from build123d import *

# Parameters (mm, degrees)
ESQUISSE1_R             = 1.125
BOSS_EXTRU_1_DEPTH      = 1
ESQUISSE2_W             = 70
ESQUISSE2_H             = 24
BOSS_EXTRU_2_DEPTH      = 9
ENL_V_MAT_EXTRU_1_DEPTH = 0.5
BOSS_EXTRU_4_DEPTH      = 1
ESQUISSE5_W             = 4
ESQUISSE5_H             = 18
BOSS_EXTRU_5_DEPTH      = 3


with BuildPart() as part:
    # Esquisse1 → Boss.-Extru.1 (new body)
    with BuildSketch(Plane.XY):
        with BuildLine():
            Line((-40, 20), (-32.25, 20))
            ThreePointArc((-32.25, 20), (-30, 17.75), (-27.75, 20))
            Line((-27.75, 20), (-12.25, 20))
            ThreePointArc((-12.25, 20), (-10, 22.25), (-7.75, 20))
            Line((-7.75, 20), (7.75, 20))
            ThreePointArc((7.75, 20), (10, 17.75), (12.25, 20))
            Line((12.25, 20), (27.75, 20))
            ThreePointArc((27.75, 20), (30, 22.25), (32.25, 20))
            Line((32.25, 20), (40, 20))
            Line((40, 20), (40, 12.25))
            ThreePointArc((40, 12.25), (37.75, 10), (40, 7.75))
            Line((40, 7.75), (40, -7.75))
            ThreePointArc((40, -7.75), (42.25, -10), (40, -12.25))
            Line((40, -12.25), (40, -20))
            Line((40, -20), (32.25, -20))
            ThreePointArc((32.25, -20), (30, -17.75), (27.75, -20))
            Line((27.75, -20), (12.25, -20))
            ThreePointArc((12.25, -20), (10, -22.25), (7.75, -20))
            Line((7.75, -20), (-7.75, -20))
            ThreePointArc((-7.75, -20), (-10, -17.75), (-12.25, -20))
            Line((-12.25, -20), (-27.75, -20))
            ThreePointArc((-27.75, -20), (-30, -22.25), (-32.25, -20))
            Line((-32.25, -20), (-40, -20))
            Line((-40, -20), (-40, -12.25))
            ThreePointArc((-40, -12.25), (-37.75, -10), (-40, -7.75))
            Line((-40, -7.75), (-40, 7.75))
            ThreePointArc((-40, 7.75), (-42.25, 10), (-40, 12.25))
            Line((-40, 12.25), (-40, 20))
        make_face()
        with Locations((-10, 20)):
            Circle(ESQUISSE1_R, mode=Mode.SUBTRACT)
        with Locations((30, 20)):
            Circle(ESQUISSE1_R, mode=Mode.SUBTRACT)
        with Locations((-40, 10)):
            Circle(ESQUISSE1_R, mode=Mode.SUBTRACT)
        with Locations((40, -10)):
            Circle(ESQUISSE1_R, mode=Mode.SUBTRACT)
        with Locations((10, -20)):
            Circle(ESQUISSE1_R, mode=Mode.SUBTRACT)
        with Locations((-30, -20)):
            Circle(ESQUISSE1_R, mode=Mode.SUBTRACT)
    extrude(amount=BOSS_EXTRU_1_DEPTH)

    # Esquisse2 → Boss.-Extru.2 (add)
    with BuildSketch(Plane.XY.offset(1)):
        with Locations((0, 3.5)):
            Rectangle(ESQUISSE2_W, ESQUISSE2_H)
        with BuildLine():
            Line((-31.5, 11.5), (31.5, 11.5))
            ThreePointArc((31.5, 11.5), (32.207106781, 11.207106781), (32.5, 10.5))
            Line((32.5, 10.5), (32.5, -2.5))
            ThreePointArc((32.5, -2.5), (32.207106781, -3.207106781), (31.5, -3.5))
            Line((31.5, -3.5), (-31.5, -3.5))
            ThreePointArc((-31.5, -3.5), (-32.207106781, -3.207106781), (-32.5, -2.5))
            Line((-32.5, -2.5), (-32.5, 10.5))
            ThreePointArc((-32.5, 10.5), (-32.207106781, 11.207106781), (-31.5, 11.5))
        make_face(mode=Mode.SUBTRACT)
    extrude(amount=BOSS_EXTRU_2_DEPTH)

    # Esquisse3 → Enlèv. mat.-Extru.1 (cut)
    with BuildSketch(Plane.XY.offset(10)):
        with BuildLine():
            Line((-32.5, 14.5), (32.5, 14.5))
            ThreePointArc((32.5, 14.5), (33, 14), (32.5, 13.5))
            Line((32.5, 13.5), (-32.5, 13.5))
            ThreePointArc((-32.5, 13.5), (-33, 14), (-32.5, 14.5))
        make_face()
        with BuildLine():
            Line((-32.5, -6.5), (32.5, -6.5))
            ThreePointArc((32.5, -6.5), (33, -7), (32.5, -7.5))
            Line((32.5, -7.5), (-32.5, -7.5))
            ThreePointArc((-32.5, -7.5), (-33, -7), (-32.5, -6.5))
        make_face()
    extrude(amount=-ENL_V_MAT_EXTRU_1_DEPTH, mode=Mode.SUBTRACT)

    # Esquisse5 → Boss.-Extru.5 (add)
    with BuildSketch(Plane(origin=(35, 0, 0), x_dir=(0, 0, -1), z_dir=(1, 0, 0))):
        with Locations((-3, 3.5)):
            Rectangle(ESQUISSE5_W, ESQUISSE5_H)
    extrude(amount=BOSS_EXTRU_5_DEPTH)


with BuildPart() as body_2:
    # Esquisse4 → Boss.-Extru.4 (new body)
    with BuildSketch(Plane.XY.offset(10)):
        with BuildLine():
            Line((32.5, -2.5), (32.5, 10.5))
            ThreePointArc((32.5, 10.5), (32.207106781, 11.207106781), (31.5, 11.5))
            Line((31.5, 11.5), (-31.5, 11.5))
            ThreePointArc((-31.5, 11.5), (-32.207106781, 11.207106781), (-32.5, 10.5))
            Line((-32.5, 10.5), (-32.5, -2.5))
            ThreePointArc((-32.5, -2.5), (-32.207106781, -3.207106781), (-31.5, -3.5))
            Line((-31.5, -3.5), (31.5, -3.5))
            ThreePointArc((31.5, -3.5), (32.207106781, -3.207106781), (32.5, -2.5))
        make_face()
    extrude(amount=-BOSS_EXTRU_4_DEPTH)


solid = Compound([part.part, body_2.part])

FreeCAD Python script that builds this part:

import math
import FreeCAD as App
import Part
import Sketcher

doc = App.newDocument("Part")
body = doc.addObject("PartDesign::Body", "Body")

# Sketch on XY plane
sketch1 = body.newObject("Sketcher::SketchObject", "Sketch")
sketch1.AttachmentSupport = (doc.getObject("XY_Plane"), [""])
sketch1.MapMode = "FlatFace"
sketch1.addGeometry(Part.LineSegment(App.Vector(-32.2, 20, 0), App.Vector(-40, 20, 0)), False)
sketch1.addGeometry(Part.LineSegment(App.Vector(-40, 20, 0), App.Vector(-40, 12.2, 0)), False)
sketch1.addGeometry(Part.ArcOfCircle(Part.Circle(App.Vector(-40, 10, 0), App.Vector(0, 0, 1), 2.2), math.radians(90), math.radians(270)), False)
sketch1.addGeometry(Part.LineSegment(App.Vector(-40, 7.8, 0), App.Vector(-40, -7.8, 0)), False)
sketch1.addGeometry(Part.ArcOfCircle(Part.Circle(App.Vector(-40, -10, 0), App.Vector(0, 0, 1), 2.2), math.radians(-90), math.radians(90)), False)
sketch1.addGeometry(Part.LineSegment(App.Vector(-40, -12.2, 0), App.Vector(-40, -20, 0)), False)
sketch1.addGeometry(Part.LineSegment(App.Vector(-40, -20, 0), App.Vector(-32.2, -20, 0)), False)
sketch1.addGeometry(Part.ArcOfCircle(Part.Circle(App.Vector(-30, -20, 0), App.Vector(0, 0, 1), 2.2), math.radians(180), math.radians(360)), False)
sketch1.addGeometry(Part.LineSegment(App.Vector(-27.8, -20, 0), App.Vector(-12.2, -20, 0)), False)
sketch1.addGeometry(Part.ArcOfCircle(Part.Circle(App.Vector(-10, -20, 0), App.Vector(0, 0, 1), 2.2), math.radians(0), math.radians(180)), False)
sketch1.addGeometry(Part.LineSegment(App.Vector(-7.8, -20, 0), App.Vector(7.8, -20, 0)), False)
sketch1.addGeometry(Part.ArcOfCircle(Part.Circle(App.Vector(10, -20, 0), App.Vector(0, 0, 1), 2.2), math.radians(180), math.radians(360)), False)
sketch1.addGeometry(Part.LineSegment(App.Vector(12.2, -20, 0), App.Vector(27.8, -20, 0)), False)
sketch1.addGeometry(Part.ArcOfCircle(Part.Circle(App.Vector(30, -20, 0), App.Vector(0, 0, 1), 2.2), math.radians(0), math.radians(180)), False)
sketch1.addGeometry(Part.LineSegment(App.Vector(32.2, -20, 0), App.Vector(40, -20, 0)), False)
sketch1.addGeometry(Part.LineSegment(App.Vector(40, -20, 0), App.Vector(40, -12.2, 0)), False)
sketch1.addGeometry(Part.ArcOfCircle(Part.Circle(App.Vector(40, -10, 0), App.Vector(0, 0, 1), 2.2), math.radians(-90), math.radians(90)), False)
sketch1.addGeometry(Part.LineSegment(App.Vector(40, -7.8, 0), App.Vector(40, 7.8, 0)), False)
sketch1.addGeometry(Part.ArcOfCircle(Part.Circle(App.Vector(40, 10, 0), App.Vector(0, 0, 1), 2.2), math.radians(90), math.radians(270)), False)
sketch1.addGeometry(Part.LineSegment(App.Vector(40, 12.2, 0), App.Vector(40, 20, 0)), False)
sketch1.addGeometry(Part.LineSegment(App.Vector(40, 20, 0), App.Vector(32.2, 20, 0)), False)
sketch1.addGeometry(Part.ArcOfCircle(Part.Circle(App.Vector(30, 20, 0), App.Vector(0, 0, 1), 2.2), math.radians(0), math.radians(180)), False)
sketch1.addGeometry(Part.LineSegment(App.Vector(27.8, 20, 0), App.Vector(12.2, 20, 0)), False)
sketch1.addGeometry(Part.ArcOfCircle(Part.Circle(App.Vector(10, 20, 0), App.Vector(0, 0, 1), 2.2), math.radians(180), math.radians(360)), False)
sketch1.addGeometry(Part.LineSegment(App.Vector(7.8, 20, 0), App.Vector(-7.8, 20, 0)), False)
sketch1.addGeometry(Part.ArcOfCircle(Part.Circle(App.Vector(-10, 20, 0), App.Vector(0, 0, 1), 2.2), math.radians(0), math.radians(180)), False)
sketch1.addGeometry(Part.LineSegment(App.Vector(-12.2, 20, 0), App.Vector(-27.8, 20, 0)), False)
sketch1.addGeometry(Part.ArcOfCircle(Part.Circle(App.Vector(-30, 20, 0), App.Vector(0, 0, 1), 2.2), math.radians(180), math.radians(360)), False)
sketch1.addGeometry(Part.Circle(App.Vector(10, -20, 0), App.Vector(0, 0, 1), 1.1), False)
sketch1.addGeometry(Part.Circle(App.Vector(40, -10, 0), App.Vector(0, 0, 1), 1.1), False)
sketch1.addGeometry(Part.Circle(App.Vector(-30, -20, 0), App.Vector(0, 0, 1), 1.1), False)
sketch1.addGeometry(Part.Circle(App.Vector(30, 20, 0), App.Vector(0, 0, 1), 1.1), False)
sketch1.addGeometry(Part.Circle(App.Vector(-40, 10, 0), App.Vector(0, 0, 1), 1.1), False)
sketch1.addGeometry(Part.Circle(App.Vector(-10, 20, 0), App.Vector(0, 0, 1), 1.1), False)
sketch1.addConstraint(Sketcher.Constraint("Coincident", 0, 2, 1, 1))
sketch1.addConstraint(Sketcher.Constraint("Coincident", 1, 2, 2, 1))
sketch1.addConstraint(Sketcher.Constraint("Coincident", 2, 2, 3, 1))
sketch1.addConstraint(Sketcher.Constraint("Coincident", 3, 2, 4, 2))
sketch1.addConstraint(Sketcher.Constraint("Coincident", 4, 1, 5, 1))
sketch1.addConstraint(Sketcher.Constraint("Coincident", 5, 2, 6, 1))
sketch1.addConstraint(Sketcher.Constraint("Coincident", 6, 2, 7, 1))
sketch1.addConstraint(Sketcher.Constraint("Coincident", 7, 2, 8, 1))
sketch1.addConstraint(Sketcher.Constraint("Coincident", 8, 2, 9, 2))
sketch1.addConstraint(Sketcher.Constraint("Coincident", 9, 1, 10, 1))
sketch1.addConstraint(Sketcher.Constraint("Coincident", 10, 2, 11, 1))
sketch1.addConstraint(Sketcher.Constraint("Coincident", 11, 2, 12, 1))
sketch1.addConstraint(Sketcher.Constraint("Coincident", 12, 2, 13, 2))
sketch1.addConstraint(Sketcher.Constraint("Coincident", 13, 1, 14, 1))
sketch1.addConstraint(Sketcher.Constraint("Coincident", 14, 2, 15, 1))
sketch1.addConstraint(Sketcher.Constraint("Coincident", 15, 2, 16, 1))
sketch1.addConstraint(Sketcher.Constraint("Coincident", 16, 2, 17, 1))
sketch1.addConstraint(Sketcher.Constraint("Coincident", 17, 2, 18, 2))
sketch1.addConstraint(Sketcher.Constraint("Coincident", 18, 1, 19, 1))
sketch1.addConstraint(Sketcher.Constraint("Coincident", 19, 2, 20, 1))
sketch1.addConstraint(Sketcher.Constraint("Coincident", 20, 2, 21, 1))
sketch1.addConstraint(Sketcher.Constraint("Coincident", 21, 2, 22, 1))
sketch1.addConstraint(Sketcher.Constraint("Coincident", 22, 2, 23, 2))
sketch1.addConstraint(Sketcher.Constraint("Coincident", 23, 1, 24, 1))
sketch1.addConstraint(Sketcher.Constraint("Coincident", 24, 2, 25, 1))
sketch1.addConstraint(Sketcher.Constraint("Coincident", 25, 2, 26, 1))
sketch1.addConstraint(Sketcher.Constraint("Coincident", 26, 2, 27, 2))
sketch1.addConstraint(Sketcher.Constraint("Coincident", 27, 1, 0, 1))
sketch1.addConstraint(Sketcher.Constraint("Horizontal", 0))
sketch1.addConstraint(Sketcher.Constraint("Vertical", 1))
sketch1.addConstraint(Sketcher.Constraint("Vertical", 3))
sketch1.addConstraint(Sketcher.Constraint("Vertical", 5))
sketch1.addConstraint(Sketcher.Constraint("Horizontal", 6))
sketch1.addConstraint(Sketcher.Constraint("Horizontal", 8))
sketch1.addConstraint(Sketcher.Constraint("Horizontal", 10))
sketch1.addConstraint(Sketcher.Constraint("Horizontal", 12))
sketch1.addConstraint(Sketcher.Constraint("Horizontal", 14))
sketch1.addConstraint(Sketcher.Constraint("Vertical", 15))
sketch1.addConstraint(Sketcher.Constraint("Vertical", 17))
sketch1.addConstraint(Sketcher.Constraint("Vertical", 19))
sketch1.addConstraint(Sketcher.Constraint("Horizontal", 20))
sketch1.addConstraint(Sketcher.Constraint("Horizontal", 22))
sketch1.addConstraint(Sketcher.Constraint("Horizontal", 24))
sketch1.addConstraint(Sketcher.Constraint("Horizontal", 26))
sketch1.addConstraint(Sketcher.Constraint("Coincident", 28, 3, 11, 3))
sketch1.addConstraint(Sketcher.Constraint("Coincident", 29, 3, 16, 3))
sketch1.addConstraint(Sketcher.Constraint("Coincident", 30, 3, 7, 3))
sketch1.addConstraint(Sketcher.Constraint("Coincident", 31, 3, 21, 3))
sketch1.addConstraint(Sketcher.Constraint("Coincident", 32, 3, 2, 3))
sketch1.addConstraint(Sketcher.Constraint("Coincident", 33, 3, 25, 3))
sketch1.addConstraint(Sketcher.Constraint("Equal", 2, 4))
sketch1.addConstraint(Sketcher.Constraint("Equal", 4, 7))
sketch1.addConstraint(Sketcher.Constraint("Equal", 7, 9))
sketch1.addConstraint(Sketcher.Constraint("Equal", 9, 11))
sketch1.addConstraint(Sketcher.Constraint("Equal", 11, 13))
sketch1.addConstraint(Sketcher.Constraint("Equal", 13, 16))
sketch1.addConstraint(Sketcher.Constraint("Equal", 16, 18))
sketch1.addConstraint(Sketcher.Constraint("Equal", 18, 21))
sketch1.addConstraint(Sketcher.Constraint("Equal", 21, 23))
sketch1.addConstraint(Sketcher.Constraint("Equal", 23, 25))
sketch1.addConstraint(Sketcher.Constraint("Equal", 25, 27))
sketch1.addConstraint(Sketcher.Constraint("Equal", 28, 29))
sketch1.addConstraint(Sketcher.Constraint("Equal", 29, 30))
sketch1.addConstraint(Sketcher.Constraint("Equal", 30, 31))
sketch1.addConstraint(Sketcher.Constraint("Equal", 31, 32))
sketch1.addConstraint(Sketcher.Constraint("Equal", 32, 33))
sketch1.addConstraint(Sketcher.Constraint("Symmetric", 2, 3, 16, 3, -1, 1))
sketch1.addConstraint(Sketcher.Constraint("Symmetric", 4, 3, 18, 3, -1, 1))
sketch1.addConstraint(Sketcher.Constraint("Symmetric", 7, 3, 21, 3, -1, 1))
sketch1.addConstraint(Sketcher.Constraint("Symmetric", 9, 3, 23, 3, -1, 1))
sketch1.addConstraint(Sketcher.Constraint("Symmetric", 11, 3, 25, 3, -1, 1))
sketch1.addConstraint(Sketcher.Constraint("Symmetric", 13, 3, 27, 3, -1, 1))
sketch1.addConstraint(Sketcher.Constraint("Symmetric", 0, 2, 14, 2, -1, 1))
sketch1.addConstraint(Sketcher.Constraint("Symmetric", 5, 2, 19, 2, -1, 1))
sketch1.addConstraint(Sketcher.Constraint("Symmetric", 9, 3, 11, 3, -2))
sketch1.addConstraint(Sketcher.Constraint("Symmetric", 7, 3, 13, 3, -2))
sketch1.addConstraint(Sketcher.Constraint("Symmetric", 4, 3, 16, 3, -2))
sketch1.addConstraint(Sketcher.Constraint("Symmetric", 5, 2, 14, 2, -2))
sketch1.addConstraint(Sketcher.Constraint("Horizontal", 7, 3, 9, 3))
sketch1.addConstraint(Sketcher.Constraint("Horizontal", 33, 3, 0, 2))
sketch1.addConstraint(Sketcher.Constraint("Horizontal", 6, 2, 7, 2))
sketch1.addConstraint(Sketcher.Constraint("Horizontal", 8, 2, 9, 1))
sketch1.addConstraint(Sketcher.Constraint("Horizontal", 10, 2, 11, 2))
sketch1.addConstraint(Sketcher.Constraint("Horizontal", 20, 2, 21, 2))
sketch1.addConstraint(Sketcher.Constraint("Horizontal", 22, 2, 23, 1))
sketch1.addConstraint(Sketcher.Constraint("Horizontal", 24, 2, 25, 2))
sketch1.addConstraint(Sketcher.Constraint("Vertical", 32, 3, 0, 2))
sketch1.addConstraint(Sketcher.Constraint("Vertical", 1, 2, 2, 2))
sketch1.addConstraint(Sketcher.Constraint("Vertical", 15, 2, 16, 2))
sketch1.addConstraint(Sketcher.Constraint("Equal", 8, 10))
sketch1.addConstraint(Sketcher.Constraint("Equal", 20, 1))
sketch1.addConstraint(Sketcher.Constraint("Equal", 26, 3))
sketch1.addConstraint(Sketcher.Constraint("Diameter", 28, 2.25))
sketch1.addConstraint(Sketcher.Constraint("Radius", 2, 2.25))
sketch1.addConstraint(Sketcher.Constraint("DistanceX", 8, 1, 8, 2, 15.5))
sketch1.addConstraint(Sketcher.Constraint("DistanceX", 2, 3, -1, 1, 40.0))
pad1 = body.newObject("PartDesign::Pad", "Pad")
pad1.Profile = sketch1
pad1.Length = 1

# Sketch on XY plane
sketch2 = body.newObject("Sketcher::SketchObject", "Sketch001")
sketch2.AttachmentSupport = (doc.getObject("XY_Plane"), [""])
sketch2.MapMode = "FlatFace"
sketch2.AttachmentOffset = App.Placement(App.Vector(0, 0, 1), App.Rotation())
sketch2.addGeometry(Part.LineSegment(App.Vector(-35, 15.5, 0), App.Vector(-35, -8.5, 0)), False)
sketch2.addGeometry(Part.LineSegment(App.Vector(-35, -8.5, 0), App.Vector(35, -8.5, 0)), False)
sketch2.addGeometry(Part.LineSegment(App.Vector(35, -8.5, 0), App.Vector(35, 15.5, 0)), False)
sketch2.addGeometry(Part.LineSegment(App.Vector(35, 15.5, 0), App.Vector(-35, 15.5, 0)), False)
sketch2.addGeometry(Part.ArcOfCircle(Part.Circle(App.Vector(-31.5, 10.5, 0), App.Vector(0, 0, 1), 1), math.radians(90), math.radians(180)), False)
sketch2.addGeometry(Part.LineSegment(App.Vector(-31.5, 11.5, 0), App.Vector(31.5, 11.5, 0)), False)
sketch2.addGeometry(Part.ArcOfCircle(Part.Circle(App.Vector(31.5, 10.5, 0), App.Vector(0, 0, 1), 1), math.radians(0), math.radians(90)), False)
sketch2.addGeometry(Part.LineSegment(App.Vector(32.5, 10.5, 0), App.Vector(32.5, -2.5, 0)), False)
sketch2.addGeometry(Part.ArcOfCircle(Part.Circle(App.Vector(31.5, -2.5, 0), App.Vector(0, 0, 1), 1), math.radians(-90), math.radians(0)), False)
sketch2.addGeometry(Part.LineSegment(App.Vector(31.5, -3.5, 0), App.Vector(-31.5, -3.5, 0)), False)
sketch2.addGeometry(Part.ArcOfCircle(Part.Circle(App.Vector(-31.5, -2.5, 0), App.Vector(0, 0, 1), 1), math.radians(-180), math.radians(-90)), False)
sketch2.addGeometry(Part.LineSegment(App.Vector(-32.5, -2.5, 0), App.Vector(-32.5, 10.5, 0)), False)
sketch2.addConstraint(Sketcher.Constraint("Coincident", 0, 2, 1, 1))
sketch2.addConstraint(Sketcher.Constraint("Coincident", 1, 2, 2, 1))
sketch2.addConstraint(Sketcher.Constraint("Coincident", 2, 2, 3, 1))
sketch2.addConstraint(Sketcher.Constraint("Coincident", 3, 2, 0, 1))
sketch2.addConstraint(Sketcher.Constraint("Tangent", 4, 1, 5, 1))
sketch2.addConstraint(Sketcher.Constraint("Tangent", 5, 2, 6, 2))
sketch2.addConstraint(Sketcher.Constraint("Tangent", 6, 1, 7, 1))
sketch2.addConstraint(Sketcher.Constraint("Tangent", 7, 2, 8, 2))
sketch2.addConstraint(Sketcher.Constraint("Tangent", 8, 1, 9, 1))
sketch2.addConstraint(Sketcher.Constraint("Tangent", 9, 2, 10, 2))
sketch2.addConstraint(Sketcher.Constraint("Tangent", 10, 1, 11, 1))
sketch2.addConstraint(Sketcher.Constraint("Tangent", 11, 2, 4, 2))
sketch2.addConstraint(Sketcher.Constraint("Vertical", 0))
sketch2.addConstraint(Sketcher.Constraint("Horizontal", 1))
sketch2.addConstraint(Sketcher.Constraint("Vertical", 2))
sketch2.addConstraint(Sketcher.Constraint("Horizontal", 3))
sketch2.addConstraint(Sketcher.Constraint("Horizontal", 5))
sketch2.addConstraint(Sketcher.Constraint("Vertical", 7))
sketch2.addConstraint(Sketcher.Constraint("Horizontal", 9))
sketch2.addConstraint(Sketcher.Constraint("Vertical", 11))
sketch2.addConstraint(Sketcher.Constraint("Equal", 4, 6))
sketch2.addConstraint(Sketcher.Constraint("Equal", 6, 8))
sketch2.addConstraint(Sketcher.Constraint("Equal", 8, 10))
sketch2.addConstraint(Sketcher.Constraint("Radius", 4, 1.0))
sketch2.addConstraint(Sketcher.Constraint("DistanceX", 1, 1, 1, 2, 70.0))
sketch2.addConstraint(Sketcher.Constraint("DistanceX", 5, 1, 5, 2, 63.0))
sketch2.addConstraint(Sketcher.Constraint("DistanceY", 0, 2, 0, 1, 24.0))
sketch2.addConstraint(Sketcher.Constraint("DistanceY", 7, 2, 7, 1, 13.0))
sketch2.addConstraint(Sketcher.Constraint("DistanceX", 0, 2, -1, 1, 35.0))
sketch2.addConstraint(Sketcher.Constraint("DistanceY", 0, 2, 10, 3, 6.0))
sketch2.addConstraint(Sketcher.Constraint("DistanceX", 4, 3, -1, 1, 31.5))
sketch2.addConstraint(Sketcher.Constraint("DistanceY", -1, 1, 4, 3, 10.5))
pad2 = body.newObject("PartDesign::Pad", "Pad001")
pad2.Profile = sketch2
pad2.Length = 9

# Sketch on XY plane
sketch3 = body.newObject("Sketcher::SketchObject", "Sketch002")
sketch3.AttachmentSupport = (doc.getObject("XY_Plane"), [""])
sketch3.MapMode = "FlatFace"
sketch3.AttachmentOffset = App.Placement(App.Vector(0, 0, 10), App.Rotation())
sketch3.addGeometry(Part.LineSegment(App.Vector(32.5, 14.5, 0), App.Vector(-32.5, 14.5, 0)), False)
sketch3.addGeometry(Part.ArcOfCircle(Part.Circle(App.Vector(-32.5, 14, 0), App.Vector(0, 0, 1), 0.5), math.radians(90), math.radians(270)), False)
sketch3.addGeometry(Part.LineSegment(App.Vector(-32.5, 13.5, 0), App.Vector(32.5, 13.5, 0)), False)
sketch3.addGeometry(Part.ArcOfCircle(Part.Circle(App.Vector(32.5, 14, 0), App.Vector(0, 0, 1), 0.5), math.radians(-90), math.radians(90)), False)
sketch3.addGeometry(Part.LineSegment(App.Vector(32.5, -6.5, 0), App.Vector(-32.5, -6.5, 0)), False)
sketch3.addGeometry(Part.ArcOfCircle(Part.Circle(App.Vector(-32.5, -7, 0), App.Vector(0, 0, 1), 0.5), math.radians(90), math.radians(270)), False)
sketch3.addGeometry(Part.LineSegment(App.Vector(-32.5, -7.5, 0), App.Vector(32.5, -7.5, 0)), False)
sketch3.addGeometry(Part.ArcOfCircle(Part.Circle(App.Vector(32.5, -7, 0), App.Vector(0, 0, 1), 0.5), math.radians(-90), math.radians(90)), False)
sketch3.addConstraint(Sketcher.Constraint("Tangent", 0, 2, 1, 1))
sketch3.addConstraint(Sketcher.Constraint("Tangent", 1, 2, 2, 1))
sketch3.addConstraint(Sketcher.Constraint("Tangent", 2, 2, 3, 1))
sketch3.addConstraint(Sketcher.Constraint("Tangent", 3, 2, 0, 1))
sketch3.addConstraint(Sketcher.Constraint("Tangent", 4, 2, 5, 1))
sketch3.addConstraint(Sketcher.Constraint("Tangent", 5, 2, 6, 1))
sketch3.addConstraint(Sketcher.Constraint("Tangent", 6, 2, 7, 1))
sketch3.addConstraint(Sketcher.Constraint("Tangent", 7, 2, 4, 1))
sketch3.addConstraint(Sketcher.Constraint("Horizontal", 0))
sketch3.addConstraint(Sketcher.Constraint("Horizontal", 2))
sketch3.addConstraint(Sketcher.Constraint("Horizontal", 4))
sketch3.addConstraint(Sketcher.Constraint("Horizontal", 6))
sketch3.addConstraint(Sketcher.Constraint("Equal", 3, 5))
sketch3.addConstraint(Sketcher.Constraint("Vertical", 1, 3, 5, 3))
sketch3.addConstraint(Sketcher.Constraint("Vertical", 3, 3, 7, 3))
sketch3.addConstraint(Sketcher.Constraint("Radius", 1, 0.5))
sketch3.addConstraint(Sketcher.Constraint("DistanceX", 0, 2, 0, 1, 65.0))
sketch3.addConstraint(Sketcher.Constraint("DistanceY", -1, 1, 1, 3, 14.0))
sketch3.addConstraint(Sketcher.Constraint("DistanceY", 5, 3, -1, 1, 7.0))
sketch3.addConstraint(Sketcher.Constraint("DistanceX", 1, 3, -1, 1, 32.5))
pocket1 = body.newObject("PartDesign::Pocket", "Pocket")
pocket1.Profile = sketch3
pocket1.Length = 0.5

# Sketch on YZ plane
sketch4 = body.newObject("Sketcher::SketchObject", "Sketch003")
sketch4.AttachmentSupport = (doc.getObject("YZ_Plane"), [""])
sketch4.MapMode = "FlatFace"
sketch4.AttachmentOffset = App.Placement(App.Vector(0, 0, 35), App.Rotation())
sketch4.addGeometry(Part.LineSegment(App.Vector(12.5, 5, 0), App.Vector(-5.5, 5, 0)), False)
sketch4.addGeometry(Part.LineSegment(App.Vector(-5.5, 5, 0), App.Vector(-5.5, 1, 0)), False)
sketch4.addGeometry(Part.LineSegment(App.Vector(-5.5, 1, 0), App.Vector(12.5, 1, 0)), False)
sketch4.addGeometry(Part.LineSegment(App.Vector(12.5, 1, 0), App.Vector(12.5, 5, 0)), False)
sketch4.addConstraint(Sketcher.Constraint("Coincident", 0, 2, 1, 1))
sketch4.addConstraint(Sketcher.Constraint("Coincident", 1, 2, 2, 1))
sketch4.addConstraint(Sketcher.Constraint("Coincident", 2, 2, 3, 1))
sketch4.addConstraint(Sketcher.Constraint("Coincident", 3, 2, 0, 1))
sketch4.addConstraint(Sketcher.Constraint("Horizontal", 0))
sketch4.addConstraint(Sketcher.Constraint("Vertical", 1))
sketch4.addConstraint(Sketcher.Constraint("Horizontal", 2))
sketch4.addConstraint(Sketcher.Constraint("Vertical", 3))
sketch4.addConstraint(Sketcher.Constraint("DistanceX", 0, 2, 0, 1, 18.0))
sketch4.addConstraint(Sketcher.Constraint("DistanceY", 1, 2, 1, 1, 4.0))
sketch4.addConstraint(Sketcher.Constraint("DistanceY", -1, 1, 0, 2, 5.0))
sketch4.addConstraint(Sketcher.Constraint("DistanceX", 0, 2, -1, 1, 5.5))
pad3 = body.newObject("PartDesign::Pad", "Pad002")
pad3.Profile = sketch4
pad3.Length = 3
body2 = doc.addObject("PartDesign::Body", "Body001")

# Sketch on XY plane
sketch5 = body2.newObject("Sketcher::SketchObject", "Sketch004")
sketch5.AttachmentSupport = (doc.getObject("XY_Plane001"), [""])
sketch5.MapMode = "FlatFace"
sketch5.AttachmentOffset = App.Placement(App.Vector(0, 0, 10), App.Rotation())
sketch5.addGeometry(Part.LineSegment(App.Vector(32.5, -2.5, 0), App.Vector(32.5, 10.5, 0)), False)
sketch5.addGeometry(Part.ArcOfCircle(Part.Circle(App.Vector(31.5, 10.5, 0), App.Vector(0, 0, 1), 1), math.radians(0), math.radians(90)), False)
sketch5.addGeometry(Part.LineSegment(App.Vector(31.5, 11.5, 0), App.Vector(-31.5, 11.5, 0)), False)
sketch5.addGeometry(Part.ArcOfCircle(Part.Circle(App.Vector(-31.5, 10.5, 0), App.Vector(0, 0, 1), 1), math.radians(90), math.radians(180)), False)
sketch5.addGeometry(Part.LineSegment(App.Vector(-32.5, 10.5, 0), App.Vector(-32.5, -2.5, 0)), False)
sketch5.addGeometry(Part.ArcOfCircle(Part.Circle(App.Vector(-31.5, -2.5, 0), App.Vector(0, 0, 1), 1), math.radians(-180), math.radians(-90)), False)
sketch5.addGeometry(Part.LineSegment(App.Vector(-31.5, -3.5, 0), App.Vector(31.5, -3.5, 0)), False)
sketch5.addGeometry(Part.ArcOfCircle(Part.Circle(App.Vector(31.5, -2.5, 0), App.Vector(0, 0, 1), 1), math.radians(-90), math.radians(0)), False)
sketch5.addConstraint(Sketcher.Constraint("Tangent", 0, 2, 1, 1))
sketch5.addConstraint(Sketcher.Constraint("Tangent", 1, 2, 2, 1))
sketch5.addConstraint(Sketcher.Constraint("Tangent", 2, 2, 3, 1))
sketch5.addConstraint(Sketcher.Constraint("Tangent", 3, 2, 4, 1))
sketch5.addConstraint(Sketcher.Constraint("Tangent", 4, 2, 5, 1))
sketch5.addConstraint(Sketcher.Constraint("Tangent", 5, 2, 6, 1))
sketch5.addConstraint(Sketcher.Constraint("Tangent", 6, 2, 7, 1))
sketch5.addConstraint(Sketcher.Constraint("Tangent", 7, 2, 0, 1))
sketch5.addConstraint(Sketcher.Constraint("Vertical", 0))
sketch5.addConstraint(Sketcher.Constraint("Horizontal", 2))
sketch5.addConstraint(Sketcher.Constraint("Vertical", 4))
sketch5.addConstraint(Sketcher.Constraint("Horizontal", 6))
sketch5.addConstraint(Sketcher.Constraint("Equal", 1, 3))
sketch5.addConstraint(Sketcher.Constraint("Equal", 3, 5))
sketch5.addConstraint(Sketcher.Constraint("Equal", 5, 7))
sketch5.addConstraint(Sketcher.Constraint("Radius", 1, 1.0))
sketch5.addConstraint(Sketcher.Constraint("DistanceX", 2, 2, 2, 1, 63.0))
sketch5.addConstraint(Sketcher.Constraint("DistanceY", 0, 1, 0, 2, 13.0))
sketch5.addConstraint(Sketcher.Constraint("DistanceX", -1, 1, 1, 3, 31.5))
sketch5.addConstraint(Sketcher.Constraint("DistanceY", -1, 1, 1, 3, 10.5))
pad4 = body2.newObject("PartDesign::Pad", "Pad003")
pad4.Profile = sketch5
pad4.Length = 1
pad4.Reversed = True

doc.recompute()
